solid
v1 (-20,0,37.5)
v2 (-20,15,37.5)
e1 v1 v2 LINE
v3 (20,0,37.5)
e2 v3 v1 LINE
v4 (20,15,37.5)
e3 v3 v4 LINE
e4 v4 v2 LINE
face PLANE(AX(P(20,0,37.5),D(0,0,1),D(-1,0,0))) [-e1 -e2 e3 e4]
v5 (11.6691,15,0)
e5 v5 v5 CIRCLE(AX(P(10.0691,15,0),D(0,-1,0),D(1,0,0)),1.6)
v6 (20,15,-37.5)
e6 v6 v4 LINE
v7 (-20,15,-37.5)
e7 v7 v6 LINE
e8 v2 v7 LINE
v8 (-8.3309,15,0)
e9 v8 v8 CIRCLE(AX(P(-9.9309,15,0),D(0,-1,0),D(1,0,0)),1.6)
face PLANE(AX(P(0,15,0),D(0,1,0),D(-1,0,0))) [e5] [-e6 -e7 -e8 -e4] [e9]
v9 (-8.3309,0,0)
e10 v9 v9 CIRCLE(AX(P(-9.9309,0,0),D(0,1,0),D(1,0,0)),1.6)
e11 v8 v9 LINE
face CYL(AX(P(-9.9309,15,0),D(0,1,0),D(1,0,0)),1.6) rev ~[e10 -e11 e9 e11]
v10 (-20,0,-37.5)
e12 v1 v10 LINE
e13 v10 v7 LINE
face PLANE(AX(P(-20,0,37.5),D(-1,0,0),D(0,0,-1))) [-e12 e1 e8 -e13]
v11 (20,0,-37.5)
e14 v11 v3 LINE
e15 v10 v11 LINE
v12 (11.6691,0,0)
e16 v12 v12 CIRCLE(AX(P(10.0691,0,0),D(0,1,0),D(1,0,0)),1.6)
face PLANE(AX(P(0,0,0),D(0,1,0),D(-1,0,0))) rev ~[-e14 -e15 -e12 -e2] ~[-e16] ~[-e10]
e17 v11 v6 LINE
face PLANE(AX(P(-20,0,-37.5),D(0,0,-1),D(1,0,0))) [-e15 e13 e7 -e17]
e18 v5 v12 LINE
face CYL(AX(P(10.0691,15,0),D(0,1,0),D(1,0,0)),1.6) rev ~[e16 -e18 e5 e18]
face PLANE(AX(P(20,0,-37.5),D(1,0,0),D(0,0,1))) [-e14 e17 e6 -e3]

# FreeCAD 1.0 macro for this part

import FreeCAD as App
import Part
import Sketcher
Q = App.Units.Quantity


def add_polygon(sketch, points):
    """Adds a closed chain of lines whose ends are joined by coincident constraints."""
    first, n = sketch.GeometryCount, len(points)
    for a, b in zip(points, points[1:] + points[:1]):
        sketch.addGeometry(Part.LineSegment(App.Vector(*a, 0), App.Vector(*b, 0)), False)
    for i in range(n):
        sketch.addConstraint(Sketcher.Constraint("Coincident", first + i, 2, first + (i + 1) % n, 1))

doc = App.newDocument("Part")
params = doc.addObject("Spreadsheet::Sheet", "Params")
for row, (alias, value) in enumerate([
    ("sketch1_width", "40 mm"),
    ("sketch1_height", "75 mm"),
    ("pad1_length", "15 mm"),
    ("sketch2_diameter", "3.2 mm"),
    ("pocket1_length", "15 mm"),
], start=1):
    params.set(f"A{row}", alias)
    params.set(f"B{row}", "=" + value)
    params.setAlias(f"B{row}", alias)

body = doc.addObject("PartDesign::Body", "Body")

# Sketch on XZ plane
sketch1 = body.newObject("Sketcher::SketchObject", "Sketch")
sketch1.AttachmentSupport = (doc.getObject("XZ_Plane"), [""])
sketch1.MapMode = "FlatFace"
add_polygon(sketch1, [(-20, 38), (20, 38), (20, -38), (-20, -38)])  # lines 0-3
sketch1.addConstraint(Sketcher.Constraint("Horizontal", 0))
sketch1.addConstraint(Sketcher.Constraint("Vertical", 1))
sketch1.addConstraint(Sketcher.Constraint("Horizontal", 2))
sketch1.addConstraint(Sketcher.Constraint("Vertical", 3))
sketch1.addConstraint(Sketcher.Constraint("Symmetric", 0, 2, 2, 2, -1, 1))
sketch1.addConstraint(Sketcher.Constraint("DistanceX", 0, 1, 0, 2, Q("40 mm")))
sketch1.addConstraint(Sketcher.Constraint("DistanceY", 1, 2, 1, 1, Q("75 mm")))
sketch1.setExpression("Constraints[9]", "Params.sketch1_width")
sketch1.setExpression("Constraints[10]", "Params.sketch1_height")
pad1 = body.newObject("PartDesign::Pad", "Pad")
pad1.Profile = sketch1
pad1.setExpression("Length", "Params.pad1_length")
pad1.Reversed = True

# Sketch on XZ plane
sketch2 = body.newObject("Sketcher::SketchObject", "Sketch001")
sketch2.AttachmentSupport = (doc.getObject("XZ_Plane"), [""])
sketch2.MapMode = "FlatFace"
sketch2.AttachmentOffset = App.Placement(App.Vector(0, 0, -15), App.Rotation())
sketch2.addGeometry(Part.Circle(App.Vector(10.1, 0, 0), App.Vector(0, 0, 1), 1.6), False)
sketch2.addGeometry(Part.Circle(App.Vector(-9.9, 0, 0), App.Vector(0, 0, 1), 1.6), False)
sketch2.addConstraint(Sketcher.Constraint("Equal", 0, 1))
sketch2.addConstraint(Sketcher.Constraint("PointOnObject", 0, 3, -1))
sketch2.addConstraint(Sketcher.Constraint("PointOnObject", 1, 3, -1))
sketch2.addConstraint(Sketcher.Constraint("Diameter", 0, Q("3.2 mm")))
sketch2.addConstraint(Sketcher.Constraint("DistanceX", 1, 3, 0, 3, Q("20 mm")))
sketch2.addConstraint(Sketcher.Constraint("DistanceX", -1, 1, 0, 3, Q("10.069 mm")))
sketch2.setExpression("Constraints[3]", "Params.sketch2_diameter")
pocket1 = body.newObject("PartDesign::Pocket", "Pocket")
pocket1.Profile = sketch2
pocket1.setExpression("Length", "Params.pocket1_length")
pocket1.Reversed = True

doc.recompute()
